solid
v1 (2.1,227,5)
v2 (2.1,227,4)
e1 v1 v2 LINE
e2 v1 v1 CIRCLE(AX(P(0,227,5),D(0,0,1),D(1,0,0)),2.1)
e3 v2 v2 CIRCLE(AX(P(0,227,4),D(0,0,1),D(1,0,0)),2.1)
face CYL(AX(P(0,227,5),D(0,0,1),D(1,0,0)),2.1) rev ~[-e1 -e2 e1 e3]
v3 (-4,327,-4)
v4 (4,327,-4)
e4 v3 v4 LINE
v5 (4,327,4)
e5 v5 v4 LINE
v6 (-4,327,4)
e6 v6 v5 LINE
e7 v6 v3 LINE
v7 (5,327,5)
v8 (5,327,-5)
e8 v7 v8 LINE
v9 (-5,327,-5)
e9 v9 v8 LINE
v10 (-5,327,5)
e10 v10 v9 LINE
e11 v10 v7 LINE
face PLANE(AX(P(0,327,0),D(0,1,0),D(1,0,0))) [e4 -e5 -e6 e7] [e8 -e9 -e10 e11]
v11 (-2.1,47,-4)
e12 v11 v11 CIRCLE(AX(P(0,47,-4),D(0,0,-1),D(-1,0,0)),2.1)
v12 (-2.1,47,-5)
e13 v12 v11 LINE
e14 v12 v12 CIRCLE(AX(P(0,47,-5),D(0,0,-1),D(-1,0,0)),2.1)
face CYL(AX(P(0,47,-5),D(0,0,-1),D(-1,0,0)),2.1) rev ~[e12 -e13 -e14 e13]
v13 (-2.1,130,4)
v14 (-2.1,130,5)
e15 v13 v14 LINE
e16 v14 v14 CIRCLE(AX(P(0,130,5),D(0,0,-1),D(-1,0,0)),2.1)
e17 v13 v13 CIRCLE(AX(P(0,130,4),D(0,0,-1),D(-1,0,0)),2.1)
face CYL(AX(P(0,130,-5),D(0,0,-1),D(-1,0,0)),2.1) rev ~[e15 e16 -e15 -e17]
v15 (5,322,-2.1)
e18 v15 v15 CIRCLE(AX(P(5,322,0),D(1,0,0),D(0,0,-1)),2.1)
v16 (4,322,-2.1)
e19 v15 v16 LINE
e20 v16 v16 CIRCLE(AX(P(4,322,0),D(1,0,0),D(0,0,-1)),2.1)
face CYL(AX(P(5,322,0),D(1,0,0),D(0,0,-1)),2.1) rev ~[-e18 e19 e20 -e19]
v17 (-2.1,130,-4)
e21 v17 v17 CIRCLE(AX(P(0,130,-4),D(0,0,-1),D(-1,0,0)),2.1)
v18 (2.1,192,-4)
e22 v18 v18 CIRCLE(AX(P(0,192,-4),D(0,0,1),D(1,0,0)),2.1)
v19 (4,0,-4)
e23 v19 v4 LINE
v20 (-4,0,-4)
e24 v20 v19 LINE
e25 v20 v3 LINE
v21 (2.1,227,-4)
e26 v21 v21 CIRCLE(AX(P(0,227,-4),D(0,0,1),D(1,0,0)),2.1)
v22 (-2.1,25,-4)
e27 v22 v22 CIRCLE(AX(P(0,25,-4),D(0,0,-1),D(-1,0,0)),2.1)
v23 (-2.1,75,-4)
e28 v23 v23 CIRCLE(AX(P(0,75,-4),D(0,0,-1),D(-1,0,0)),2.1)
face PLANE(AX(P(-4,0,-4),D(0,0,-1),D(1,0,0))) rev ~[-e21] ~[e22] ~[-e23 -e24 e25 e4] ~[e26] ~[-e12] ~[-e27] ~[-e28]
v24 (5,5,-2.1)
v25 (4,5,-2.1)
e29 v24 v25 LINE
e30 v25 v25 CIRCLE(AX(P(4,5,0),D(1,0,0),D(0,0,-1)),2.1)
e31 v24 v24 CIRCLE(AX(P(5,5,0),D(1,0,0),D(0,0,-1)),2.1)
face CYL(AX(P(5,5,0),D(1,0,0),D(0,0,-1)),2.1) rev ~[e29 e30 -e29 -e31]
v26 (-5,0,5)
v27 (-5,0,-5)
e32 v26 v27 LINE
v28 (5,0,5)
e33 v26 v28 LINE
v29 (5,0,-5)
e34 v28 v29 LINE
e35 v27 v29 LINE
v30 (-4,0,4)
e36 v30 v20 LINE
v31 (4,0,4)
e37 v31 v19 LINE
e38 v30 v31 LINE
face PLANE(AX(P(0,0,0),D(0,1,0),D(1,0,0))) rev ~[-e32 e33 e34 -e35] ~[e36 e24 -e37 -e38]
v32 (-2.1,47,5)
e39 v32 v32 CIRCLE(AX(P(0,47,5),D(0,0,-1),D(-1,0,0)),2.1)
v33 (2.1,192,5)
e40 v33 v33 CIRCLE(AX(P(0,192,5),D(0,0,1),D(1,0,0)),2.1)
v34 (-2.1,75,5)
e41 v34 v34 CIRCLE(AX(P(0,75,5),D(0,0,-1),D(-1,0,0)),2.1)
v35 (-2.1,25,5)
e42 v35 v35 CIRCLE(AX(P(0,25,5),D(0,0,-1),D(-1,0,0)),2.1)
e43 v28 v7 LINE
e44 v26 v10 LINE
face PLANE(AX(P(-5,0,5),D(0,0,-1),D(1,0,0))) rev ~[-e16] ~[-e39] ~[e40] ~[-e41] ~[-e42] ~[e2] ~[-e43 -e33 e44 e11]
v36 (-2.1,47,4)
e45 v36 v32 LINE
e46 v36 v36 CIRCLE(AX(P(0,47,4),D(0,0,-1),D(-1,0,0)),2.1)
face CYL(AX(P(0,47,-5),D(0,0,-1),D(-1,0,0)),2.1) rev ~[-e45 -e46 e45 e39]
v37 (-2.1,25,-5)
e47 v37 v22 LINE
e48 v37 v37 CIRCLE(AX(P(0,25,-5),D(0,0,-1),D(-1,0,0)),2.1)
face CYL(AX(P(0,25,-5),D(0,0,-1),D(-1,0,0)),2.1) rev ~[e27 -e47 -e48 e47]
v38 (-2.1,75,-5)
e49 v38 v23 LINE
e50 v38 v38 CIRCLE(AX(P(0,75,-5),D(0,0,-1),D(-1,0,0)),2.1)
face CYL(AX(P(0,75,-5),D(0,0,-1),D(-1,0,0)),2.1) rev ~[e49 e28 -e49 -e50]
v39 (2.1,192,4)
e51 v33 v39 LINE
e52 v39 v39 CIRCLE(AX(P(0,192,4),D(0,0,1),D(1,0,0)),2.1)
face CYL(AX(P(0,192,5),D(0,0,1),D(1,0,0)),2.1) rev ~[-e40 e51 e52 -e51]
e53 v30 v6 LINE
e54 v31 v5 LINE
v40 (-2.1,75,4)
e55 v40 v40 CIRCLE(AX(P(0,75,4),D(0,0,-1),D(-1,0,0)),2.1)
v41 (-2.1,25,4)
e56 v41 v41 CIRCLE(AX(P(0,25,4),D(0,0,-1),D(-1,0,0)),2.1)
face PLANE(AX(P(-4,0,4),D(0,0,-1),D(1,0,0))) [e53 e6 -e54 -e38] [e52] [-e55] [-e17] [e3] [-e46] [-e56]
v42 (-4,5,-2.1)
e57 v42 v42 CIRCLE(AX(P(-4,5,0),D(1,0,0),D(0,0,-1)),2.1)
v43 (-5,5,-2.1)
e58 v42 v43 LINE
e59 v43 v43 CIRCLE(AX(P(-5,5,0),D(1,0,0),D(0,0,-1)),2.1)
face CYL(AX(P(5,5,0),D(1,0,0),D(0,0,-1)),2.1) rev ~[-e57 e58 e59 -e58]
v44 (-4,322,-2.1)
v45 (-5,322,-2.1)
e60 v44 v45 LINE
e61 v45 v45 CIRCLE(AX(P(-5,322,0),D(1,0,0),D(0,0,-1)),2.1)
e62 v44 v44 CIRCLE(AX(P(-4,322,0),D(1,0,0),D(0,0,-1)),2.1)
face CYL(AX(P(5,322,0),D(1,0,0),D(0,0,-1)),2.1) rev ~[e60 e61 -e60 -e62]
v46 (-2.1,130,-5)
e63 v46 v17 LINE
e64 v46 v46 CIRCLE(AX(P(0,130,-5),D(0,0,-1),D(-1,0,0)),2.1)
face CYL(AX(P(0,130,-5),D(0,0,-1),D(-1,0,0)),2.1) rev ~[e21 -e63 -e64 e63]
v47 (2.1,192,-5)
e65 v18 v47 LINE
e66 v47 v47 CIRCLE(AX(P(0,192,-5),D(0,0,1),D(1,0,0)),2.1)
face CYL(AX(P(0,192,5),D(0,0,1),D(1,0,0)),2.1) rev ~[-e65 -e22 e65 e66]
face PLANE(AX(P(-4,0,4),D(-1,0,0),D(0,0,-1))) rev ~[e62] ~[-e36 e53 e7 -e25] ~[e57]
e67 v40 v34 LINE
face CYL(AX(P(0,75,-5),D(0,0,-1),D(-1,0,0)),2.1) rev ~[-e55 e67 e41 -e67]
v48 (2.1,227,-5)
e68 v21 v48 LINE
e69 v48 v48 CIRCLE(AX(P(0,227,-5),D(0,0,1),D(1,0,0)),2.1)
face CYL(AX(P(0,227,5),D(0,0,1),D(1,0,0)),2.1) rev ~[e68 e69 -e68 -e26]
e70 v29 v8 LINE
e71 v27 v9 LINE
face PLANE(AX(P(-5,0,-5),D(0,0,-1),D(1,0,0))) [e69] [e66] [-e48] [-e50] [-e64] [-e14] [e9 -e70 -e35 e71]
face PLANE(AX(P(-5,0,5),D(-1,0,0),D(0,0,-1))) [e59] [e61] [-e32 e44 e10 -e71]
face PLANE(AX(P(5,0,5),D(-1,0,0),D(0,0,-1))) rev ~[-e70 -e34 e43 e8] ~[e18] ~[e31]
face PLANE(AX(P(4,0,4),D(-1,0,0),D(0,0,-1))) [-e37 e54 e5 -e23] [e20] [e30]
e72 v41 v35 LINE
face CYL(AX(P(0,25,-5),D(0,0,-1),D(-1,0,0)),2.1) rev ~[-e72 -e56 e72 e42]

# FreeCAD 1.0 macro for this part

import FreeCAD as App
import Part
import Sketcher
from FreeCAD import Vector
Q = App.Units.Quantity

doc = App.newDocument("Part")
body = doc.addObject("PartDesign::Body", "Body")

sketch1 = body.newObject("Sketcher::SketchObject", "Sketch")
sketch1.AttachmentSupport = (doc.getObject("XZ_Plane"), [""])
sketch1.MapMode = "FlatFace"
sketch1.addGeometry([
    Part.LineSegment(Vector(-5, -5, 0), Vector(-5, 5, 0)),
    Part.LineSegment(Vector(-5, 5, 0), Vector(5, 5, 0)),
    Part.LineSegment(Vector(5, 5, 0), Vector(5, -5, 0)),
    Part.LineSegment(Vector(5, -5, 0), Vector(-5, -5, 0)),
    Part.LineSegment(Vector(4, 4, 0), Vector(-4, 4, 0)),
    Part.LineSegment(Vector(-4, 4, 0), Vector(-4, -4, 0)),
    Part.LineSegment(Vector(-4, -4, 0), Vector(4, -4, 0)),
    Part.LineSegment(Vector(4, -4, 0), Vector(4, 4, 0)),
], False)
sketch1.addConstraint([
    Sketcher.Constraint("Coincident", 0, 2, 1, 1),
    Sketcher.Constraint("Coincident", 1, 2, 2, 1),
    Sketcher.Constraint("Coincident", 2, 2, 3, 1),
    Sketcher.Constraint("Coincident", 3, 2, 0, 1),
    Sketcher.Constraint("Coincident", 4, 2, 5, 1),
    Sketcher.Constraint("Coincident", 5, 2, 6, 1),
    Sketcher.Constraint("Coincident", 6, 2, 7, 1),
    Sketcher.Constraint("Coincident", 7, 2, 4, 1),
    Sketcher.Constraint("Vertical", 0),
    Sketcher.Constraint("Horizontal", 1),
    Sketcher.Constraint("Vertical", 2),
    Sketcher.Constraint("Horizontal", 3),
    Sketcher.Constraint("Horizontal", 4),
    Sketcher.Constraint("Vertical", 5),
    Sketcher.Constraint("Horizontal", 6),
    Sketcher.Constraint("Vertical", 7),
    Sketcher.Constraint("Symmetric", 0, 2, 2, 2, -1, 1),
    Sketcher.Constraint("Symmetric", 4, 2, 6, 2, -1, 1),
    Sketcher.Constraint("Equal", 3, 0),
    Sketcher.Constraint("Equal", 6, 5),
    Sketcher.Constraint("DistanceX", 1, 1, 1, 2, Q("10 mm")),
    Sketcher.Constraint("DistanceX", 4, 2, 4, 1, Q("8 mm")),
])
pad1 = body.newObject("PartDesign::Pad", "Pad")
pad1.Profile = sketch1
pad1.Length = 327
pad1.Reversed = True

sketch2 = body.newObject("Sketcher::SketchObject", "Sketch001")
sketch2.AttachmentSupport = (doc.getObject("YZ_Plane"), [""])
sketch2.MapMode = "FlatFace"
sketch2.AttachmentOffset = App.Placement(Vector(0, 0, 5), App.Rotation())
sketch2.addGeometry([
    Part.Circle(Vector(322, 0, 0), Vector(0, 0, 1), 2.1),
    Part.Circle(Vector(5, 0, 0), Vector(0, 0, 1), 2.1),
], False)
sketch2.addConstraint([
    Sketcher.Constraint("Equal", 0, 1),
    Sketcher.Constraint("PointOnObject", 0, 3, -1),
    Sketcher.Constraint("PointOnObject", 1, 3, -1),
    Sketcher.Constraint("Diameter", 0, Q("4.2 mm")),
    Sketcher.Constraint("DistanceX", -1, 1, 0, 3, Q("322 mm")),
    Sketcher.Constraint("DistanceX", -1, 1, 1, 3, Q("5 mm")),
])
pocket1 = body.newObject("PartDesign::Pocket", "Pocket")
pocket1.Profile = sketch2
pocket1.Type = "ThroughAll"

sketch3 = body.newObject("Sketcher::SketchObject", "Sketch002")
sketch3.AttachmentSupport = (doc.getObject("XY_Plane"), [""])
sketch3.MapMode = "FlatFace"
sketch3.AttachmentOffset = App.Placement(Vector(0, 0, -5), App.Rotation())
sketch3.addGeometry([
    Part.Circle(Vector(0, 130, 0), Vector(0, 0, 1), 2.1),
    Part.Circle(Vector(0, 75, 0), Vector(0, 0, 1), 2.1),
    Part.Circle(Vector(0, 47, 0), Vector(0, 0, 1), 2.1),
    Part.Circle(Vector(0, 25, 0), Vector(0, 0, 1), 2.1),
], False)
sketch3.addConstraint([
    Sketcher.Constraint("Equal", 0, 1),
    Sketcher.Constraint("Equal", 1, 2),
    Sketcher.Constraint("Equal", 2, 3),
    Sketcher.Constraint("PointOnObject", 0, 3, -2),
    Sketcher.Constraint("PointOnObject", 1, 3, -2),
    Sketcher.Constraint("PointOnObject", 2, 3, -2),
    Sketcher.Constraint("PointOnObject", 3, 3, -2),
    Sketcher.Constraint("Diameter", 0, Q("4.2 mm")),
    Sketcher.Constraint("DistanceY", -1, 1, 0, 3, Q("130 mm")),
    Sketcher.Constraint("DistanceY", -1, 1, 1, 3, Q("75 mm")),
    Sketcher.Constraint("DistanceY", -1, 1, 2, 3, Q("47 mm")),
    Sketcher.Constraint("DistanceY", -1, 1, 3, 3, Q("25 mm")),
])
pocket2 = body.newObject("PartDesign::Pocket", "Pocket001")
pocket2.Profile = sketch3
pocket2.Type = "ThroughAll"
pocket2.Reversed = True

sketch4 = body.newObject("Sketcher::SketchObject", "Sketch003")
sketch4.AttachmentSupport = (doc.getObject("XY_Plane"), [""])
sketch4.MapMode = "FlatFace"
sketch4.AttachmentOffset = App.Placement(Vector(0, 0, 5), App.Rotation())
sketch4.addGeometry([
    Part.Circle(Vector(0, 192, 0), Vector(0, 0, 1), 2.1),
    Part.Circle(Vector(0, 227, 0), Vector(0, 0, 1), 2.1),
], False)
sketch4.addConstraint([
    Sketcher.Constraint("Equal", 0, 1),
    Sketcher.Constraint("PointOnObject", 0, 3, -2),
    Sketcher.Constraint("PointOnObject", 1, 3, -2),
    Sketcher.Constraint("Diameter", 0, Q("4.2 mm")),
    Sketcher.Constraint("DistanceY", -1, 1, 0, 3, Q("192 mm")),
    Sketcher.Constraint("DistanceY", -1, 1, 1, 3, Q("227 mm")),
])
pocket3 = body.newObject("PartDesign::Pocket", "Pocket002")
pocket3.Profile = sketch4
pocket3.Type = "ThroughAll"

doc.recompute()
